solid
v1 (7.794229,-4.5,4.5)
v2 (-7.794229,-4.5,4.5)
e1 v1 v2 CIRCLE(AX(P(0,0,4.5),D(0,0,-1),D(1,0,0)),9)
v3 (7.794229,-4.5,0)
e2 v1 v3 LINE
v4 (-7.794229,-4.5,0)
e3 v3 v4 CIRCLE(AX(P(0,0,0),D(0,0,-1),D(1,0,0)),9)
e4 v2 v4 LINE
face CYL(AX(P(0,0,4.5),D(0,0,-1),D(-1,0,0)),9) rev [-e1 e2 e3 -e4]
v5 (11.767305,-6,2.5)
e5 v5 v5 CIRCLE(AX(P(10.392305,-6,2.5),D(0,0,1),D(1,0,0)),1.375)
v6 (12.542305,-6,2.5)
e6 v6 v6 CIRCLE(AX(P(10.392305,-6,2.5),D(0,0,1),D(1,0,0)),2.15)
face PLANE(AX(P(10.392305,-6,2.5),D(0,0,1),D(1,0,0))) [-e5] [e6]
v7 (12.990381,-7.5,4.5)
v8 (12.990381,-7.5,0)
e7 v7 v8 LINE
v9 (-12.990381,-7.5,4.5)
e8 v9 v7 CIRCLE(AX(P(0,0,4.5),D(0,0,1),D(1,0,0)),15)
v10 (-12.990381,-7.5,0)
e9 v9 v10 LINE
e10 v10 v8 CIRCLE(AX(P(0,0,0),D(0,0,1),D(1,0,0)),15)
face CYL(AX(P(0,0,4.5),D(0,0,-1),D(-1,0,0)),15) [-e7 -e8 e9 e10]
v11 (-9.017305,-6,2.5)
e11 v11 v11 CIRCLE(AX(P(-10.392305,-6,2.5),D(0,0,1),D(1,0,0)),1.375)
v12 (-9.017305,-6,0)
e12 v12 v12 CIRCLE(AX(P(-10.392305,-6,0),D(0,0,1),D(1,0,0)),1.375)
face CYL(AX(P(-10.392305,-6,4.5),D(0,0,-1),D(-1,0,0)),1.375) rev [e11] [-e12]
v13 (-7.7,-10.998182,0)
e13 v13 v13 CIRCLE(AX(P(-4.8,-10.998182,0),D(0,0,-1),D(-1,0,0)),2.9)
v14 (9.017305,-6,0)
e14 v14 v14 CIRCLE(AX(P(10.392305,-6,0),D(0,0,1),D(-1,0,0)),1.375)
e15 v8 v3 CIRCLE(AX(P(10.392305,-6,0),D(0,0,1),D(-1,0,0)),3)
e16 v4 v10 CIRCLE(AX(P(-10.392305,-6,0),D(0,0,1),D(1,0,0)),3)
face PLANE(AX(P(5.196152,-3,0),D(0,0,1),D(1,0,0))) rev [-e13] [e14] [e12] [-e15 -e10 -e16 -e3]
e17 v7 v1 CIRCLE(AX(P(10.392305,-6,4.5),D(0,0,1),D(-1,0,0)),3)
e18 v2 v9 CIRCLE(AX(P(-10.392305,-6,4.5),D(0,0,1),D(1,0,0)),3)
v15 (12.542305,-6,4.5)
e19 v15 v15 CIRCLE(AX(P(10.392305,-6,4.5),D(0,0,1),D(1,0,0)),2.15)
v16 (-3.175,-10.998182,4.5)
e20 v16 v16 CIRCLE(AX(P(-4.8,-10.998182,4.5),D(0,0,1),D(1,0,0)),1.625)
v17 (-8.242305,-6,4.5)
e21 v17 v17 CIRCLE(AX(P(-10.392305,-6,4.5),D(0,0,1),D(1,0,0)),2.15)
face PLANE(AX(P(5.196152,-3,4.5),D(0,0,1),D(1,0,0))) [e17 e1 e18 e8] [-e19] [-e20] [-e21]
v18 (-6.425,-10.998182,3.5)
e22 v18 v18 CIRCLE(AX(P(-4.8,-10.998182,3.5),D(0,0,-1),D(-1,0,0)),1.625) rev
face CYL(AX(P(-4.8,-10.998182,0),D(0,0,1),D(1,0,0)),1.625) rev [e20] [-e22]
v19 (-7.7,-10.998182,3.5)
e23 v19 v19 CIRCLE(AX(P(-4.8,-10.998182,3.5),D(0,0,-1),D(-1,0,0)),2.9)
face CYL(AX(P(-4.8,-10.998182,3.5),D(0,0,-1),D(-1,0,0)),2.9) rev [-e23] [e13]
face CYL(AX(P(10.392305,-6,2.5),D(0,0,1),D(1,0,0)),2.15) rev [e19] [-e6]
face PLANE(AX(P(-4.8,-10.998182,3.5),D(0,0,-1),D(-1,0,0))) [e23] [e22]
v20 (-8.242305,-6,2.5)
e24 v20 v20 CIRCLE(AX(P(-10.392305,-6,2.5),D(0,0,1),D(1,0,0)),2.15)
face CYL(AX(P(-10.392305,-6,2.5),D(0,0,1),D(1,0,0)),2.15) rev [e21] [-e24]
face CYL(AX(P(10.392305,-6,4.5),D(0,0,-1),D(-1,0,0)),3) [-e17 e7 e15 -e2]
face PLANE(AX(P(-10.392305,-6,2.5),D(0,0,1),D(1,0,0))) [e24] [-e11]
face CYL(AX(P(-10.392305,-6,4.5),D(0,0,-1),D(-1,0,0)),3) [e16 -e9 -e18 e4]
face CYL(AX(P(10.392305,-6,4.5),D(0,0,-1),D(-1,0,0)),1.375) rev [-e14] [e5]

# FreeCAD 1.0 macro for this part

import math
import FreeCAD as App
import Part
import Sketcher

V = App.Vector
Q = App.Units.Quantity

doc = App.newDocument("Part")
body = doc.addObject("PartDesign::Body", "Body")

# Sketch on XY plane
sketch1 = doc.addObject("Sketcher::SketchObject", "Sketch")
body.addObject(sketch1)
sketch1.AttachmentSupport = (doc.XY_Plane, [""])
sketch1.MapMode = "FlatFace"
sketch1.addGeometry(Part.ArcOfCircle(Part.Circle(V(-10.4, -6, 0), V(0, 0, 1), 3), math.radians(30), math.radians(210)), False)
sketch1.addGeometry(Part.ArcOfCircle(Part.Circle(V(0, 0, 0), V(0, 0, 1), 15), math.radians(-150), math.radians(-30)), False)
sketch1.addGeometry(Part.ArcOfCircle(Part.Circle(V(10.4, -6, 0), V(0, 0, 1), 3), math.radians(-30), math.radians(150)), False)
sketch1.addGeometry(Part.ArcOfCircle(Part.Circle(V(0, 0, 0), V(0, 0, 1), 9), math.radians(-150), math.radians(-30)), False)
sketch1.addGeometry(Part.Circle(V(-10.4, -6, 0), V(0, 0, 1), 1.4), False)
sketch1.addGeometry(Part.Circle(V(10.4, -6, 0), V(0, 0, 1), 1.4), False)
sketch1.addConstraint(Sketcher.Constraint("Tangent", 0, 2, 1, 1))
sketch1.addConstraint(Sketcher.Constraint("Tangent", 1, 2, 2, 1))
sketch1.addConstraint(Sketcher.Constraint("Tangent", 2, 2, 3, 2))
sketch1.addConstraint(Sketcher.Constraint("Tangent", 3, 1, 0, 1))
sketch1.addConstraint(Sketcher.Constraint("Coincident", 1, 3, -1, 1))
sketch1.addConstraint(Sketcher.Constraint("Coincident", 3, 3, -1, 1))
sketch1.addConstraint(Sketcher.Constraint("Coincident", 4, 3, 0, 3))
sketch1.addConstraint(Sketcher.Constraint("Coincident", 5, 3, 2, 3))
sketch1.addConstraint(Sketcher.Constraint("Equal", 4, 5))
sketch1.addConstraint(Sketcher.Constraint("Horizontal", 0, 3, 2, 3))
sketch1.addConstraint(Sketcher.Constraint("Radius", 0, Q("3 mm")))
sketch1.addConstraint(Sketcher.Constraint("Radius", 1, Q("15 mm")))
sketch1.addConstraint(Sketcher.Constraint("Diameter", 4, Q("2.75 mm")))
sketch1.addConstraint(Sketcher.Constraint("DistanceY", 0, 3, -1, 1, Q("6 mm")))
pad1 = doc.addObject("PartDesign::Pad", "Pad")
body.addObject(pad1)
pad1.Profile = sketch1
pad1.Length = 4.5

# Sketch on XY plane
sketch2 = doc.addObject("Sketcher::SketchObject", "Sketch001")
body.addObject(sketch2)
sketch2.AttachmentSupport = (doc.XY_Plane, [""])
sketch2.MapMode = "FlatFace"
sketch2.AttachmentOffset = App.Placement(V(0, 0, 4.5), App.Rotation())
sketch2.addGeometry(Part.Circle(V(-4.8, -11, 0), V(0, 0, 1), 1.6), False)
sketch2.addConstraint(Sketcher.Constraint("Diameter", 0, Q("3.25 mm")))
sketch2.addConstraint(Sketcher.Constraint("DistanceX", 0, 3, -1, 1, Q("4.8 mm")))
sketch2.addConstraint(Sketcher.Constraint("DistanceY", 0, 3, -1, 1, Q("10.998182 mm")))
pocket1 = doc.addObject("PartDesign::Pocket", "Pocket")
body.addObject(pocket1)
pocket1.Profile = sketch2
pocket1.Type = "ThroughAll"

# Sketch on XY plane
sketch3 = doc.addObject("Sketcher::SketchObject", "Sketch002")
body.addObject(sketch3)
sketch3.AttachmentSupport = (doc.XY_Plane, [""])
sketch3.MapMode = "FlatFace"
sketch3.AttachmentOffset = App.Placement(V(0, 0, 4.5), App.Rotation())
sketch3.addGeometry(Part.Circle(V(-10.4, -6, 0), V(0, 0, 1), 2.1), False)
sketch3.addGeometry(Part.Circle(V(10.4, -6, 0), V(0, 0, 1), 2.1), False)
sketch3.addConstraint(Sketcher.Constraint("Equal", 0, 1))
sketch3.addConstraint(Sketcher.Constraint("Symmetric", 0, 3, 1, 3, -2))
sketch3.addConstraint(Sketcher.Constraint("Diameter", 0, Q("4.3 mm")))
sketch3.addConstraint(Sketcher.Constraint("DistanceY", 0, 3, -1, 1, Q("6 mm")))
sketch3.addConstraint(Sketcher.Constraint("DistanceX", 0, 3, 1, 3, Q("20.78461 mm")))
pocket2 = doc.addObject("PartDesign::Pocket", "Pocket001")
body.addObject(pocket2)
pocket2.Profile = sketch3
pocket2.Length = 2

# Sketch on XY plane
sketch4 = doc.addObject("Sketcher::SketchObject", "Sketch003")
body.addObject(sketch4)
sketch4.AttachmentSupport = (doc.XY_Plane, [""])
sketch4.MapMode = "FlatFace"
sketch4.addGeometry(Part.Circle(V(-4.8, -11, 0), V(0, 0, 1), 2.9), False)
sketch4.addConstraint(Sketcher.Constraint("Diameter", 0, Q("5.8 mm")))
sketch4.addConstraint(Sketcher.Constraint("DistanceX", 0, 3, -1, 1, Q("4.8 mm")))
sketch4.addConstraint(Sketcher.Constraint("DistanceY", 0, 3, -1, 1, Q("10.998182 mm")))
pocket3 = doc.addObject("PartDesign::Pocket", "Pocket002")
body.addObject(pocket3)
pocket3.Profile = sketch4
pocket3.Length = 3.5
pocket3.Reversed = True

doc.recompute()
